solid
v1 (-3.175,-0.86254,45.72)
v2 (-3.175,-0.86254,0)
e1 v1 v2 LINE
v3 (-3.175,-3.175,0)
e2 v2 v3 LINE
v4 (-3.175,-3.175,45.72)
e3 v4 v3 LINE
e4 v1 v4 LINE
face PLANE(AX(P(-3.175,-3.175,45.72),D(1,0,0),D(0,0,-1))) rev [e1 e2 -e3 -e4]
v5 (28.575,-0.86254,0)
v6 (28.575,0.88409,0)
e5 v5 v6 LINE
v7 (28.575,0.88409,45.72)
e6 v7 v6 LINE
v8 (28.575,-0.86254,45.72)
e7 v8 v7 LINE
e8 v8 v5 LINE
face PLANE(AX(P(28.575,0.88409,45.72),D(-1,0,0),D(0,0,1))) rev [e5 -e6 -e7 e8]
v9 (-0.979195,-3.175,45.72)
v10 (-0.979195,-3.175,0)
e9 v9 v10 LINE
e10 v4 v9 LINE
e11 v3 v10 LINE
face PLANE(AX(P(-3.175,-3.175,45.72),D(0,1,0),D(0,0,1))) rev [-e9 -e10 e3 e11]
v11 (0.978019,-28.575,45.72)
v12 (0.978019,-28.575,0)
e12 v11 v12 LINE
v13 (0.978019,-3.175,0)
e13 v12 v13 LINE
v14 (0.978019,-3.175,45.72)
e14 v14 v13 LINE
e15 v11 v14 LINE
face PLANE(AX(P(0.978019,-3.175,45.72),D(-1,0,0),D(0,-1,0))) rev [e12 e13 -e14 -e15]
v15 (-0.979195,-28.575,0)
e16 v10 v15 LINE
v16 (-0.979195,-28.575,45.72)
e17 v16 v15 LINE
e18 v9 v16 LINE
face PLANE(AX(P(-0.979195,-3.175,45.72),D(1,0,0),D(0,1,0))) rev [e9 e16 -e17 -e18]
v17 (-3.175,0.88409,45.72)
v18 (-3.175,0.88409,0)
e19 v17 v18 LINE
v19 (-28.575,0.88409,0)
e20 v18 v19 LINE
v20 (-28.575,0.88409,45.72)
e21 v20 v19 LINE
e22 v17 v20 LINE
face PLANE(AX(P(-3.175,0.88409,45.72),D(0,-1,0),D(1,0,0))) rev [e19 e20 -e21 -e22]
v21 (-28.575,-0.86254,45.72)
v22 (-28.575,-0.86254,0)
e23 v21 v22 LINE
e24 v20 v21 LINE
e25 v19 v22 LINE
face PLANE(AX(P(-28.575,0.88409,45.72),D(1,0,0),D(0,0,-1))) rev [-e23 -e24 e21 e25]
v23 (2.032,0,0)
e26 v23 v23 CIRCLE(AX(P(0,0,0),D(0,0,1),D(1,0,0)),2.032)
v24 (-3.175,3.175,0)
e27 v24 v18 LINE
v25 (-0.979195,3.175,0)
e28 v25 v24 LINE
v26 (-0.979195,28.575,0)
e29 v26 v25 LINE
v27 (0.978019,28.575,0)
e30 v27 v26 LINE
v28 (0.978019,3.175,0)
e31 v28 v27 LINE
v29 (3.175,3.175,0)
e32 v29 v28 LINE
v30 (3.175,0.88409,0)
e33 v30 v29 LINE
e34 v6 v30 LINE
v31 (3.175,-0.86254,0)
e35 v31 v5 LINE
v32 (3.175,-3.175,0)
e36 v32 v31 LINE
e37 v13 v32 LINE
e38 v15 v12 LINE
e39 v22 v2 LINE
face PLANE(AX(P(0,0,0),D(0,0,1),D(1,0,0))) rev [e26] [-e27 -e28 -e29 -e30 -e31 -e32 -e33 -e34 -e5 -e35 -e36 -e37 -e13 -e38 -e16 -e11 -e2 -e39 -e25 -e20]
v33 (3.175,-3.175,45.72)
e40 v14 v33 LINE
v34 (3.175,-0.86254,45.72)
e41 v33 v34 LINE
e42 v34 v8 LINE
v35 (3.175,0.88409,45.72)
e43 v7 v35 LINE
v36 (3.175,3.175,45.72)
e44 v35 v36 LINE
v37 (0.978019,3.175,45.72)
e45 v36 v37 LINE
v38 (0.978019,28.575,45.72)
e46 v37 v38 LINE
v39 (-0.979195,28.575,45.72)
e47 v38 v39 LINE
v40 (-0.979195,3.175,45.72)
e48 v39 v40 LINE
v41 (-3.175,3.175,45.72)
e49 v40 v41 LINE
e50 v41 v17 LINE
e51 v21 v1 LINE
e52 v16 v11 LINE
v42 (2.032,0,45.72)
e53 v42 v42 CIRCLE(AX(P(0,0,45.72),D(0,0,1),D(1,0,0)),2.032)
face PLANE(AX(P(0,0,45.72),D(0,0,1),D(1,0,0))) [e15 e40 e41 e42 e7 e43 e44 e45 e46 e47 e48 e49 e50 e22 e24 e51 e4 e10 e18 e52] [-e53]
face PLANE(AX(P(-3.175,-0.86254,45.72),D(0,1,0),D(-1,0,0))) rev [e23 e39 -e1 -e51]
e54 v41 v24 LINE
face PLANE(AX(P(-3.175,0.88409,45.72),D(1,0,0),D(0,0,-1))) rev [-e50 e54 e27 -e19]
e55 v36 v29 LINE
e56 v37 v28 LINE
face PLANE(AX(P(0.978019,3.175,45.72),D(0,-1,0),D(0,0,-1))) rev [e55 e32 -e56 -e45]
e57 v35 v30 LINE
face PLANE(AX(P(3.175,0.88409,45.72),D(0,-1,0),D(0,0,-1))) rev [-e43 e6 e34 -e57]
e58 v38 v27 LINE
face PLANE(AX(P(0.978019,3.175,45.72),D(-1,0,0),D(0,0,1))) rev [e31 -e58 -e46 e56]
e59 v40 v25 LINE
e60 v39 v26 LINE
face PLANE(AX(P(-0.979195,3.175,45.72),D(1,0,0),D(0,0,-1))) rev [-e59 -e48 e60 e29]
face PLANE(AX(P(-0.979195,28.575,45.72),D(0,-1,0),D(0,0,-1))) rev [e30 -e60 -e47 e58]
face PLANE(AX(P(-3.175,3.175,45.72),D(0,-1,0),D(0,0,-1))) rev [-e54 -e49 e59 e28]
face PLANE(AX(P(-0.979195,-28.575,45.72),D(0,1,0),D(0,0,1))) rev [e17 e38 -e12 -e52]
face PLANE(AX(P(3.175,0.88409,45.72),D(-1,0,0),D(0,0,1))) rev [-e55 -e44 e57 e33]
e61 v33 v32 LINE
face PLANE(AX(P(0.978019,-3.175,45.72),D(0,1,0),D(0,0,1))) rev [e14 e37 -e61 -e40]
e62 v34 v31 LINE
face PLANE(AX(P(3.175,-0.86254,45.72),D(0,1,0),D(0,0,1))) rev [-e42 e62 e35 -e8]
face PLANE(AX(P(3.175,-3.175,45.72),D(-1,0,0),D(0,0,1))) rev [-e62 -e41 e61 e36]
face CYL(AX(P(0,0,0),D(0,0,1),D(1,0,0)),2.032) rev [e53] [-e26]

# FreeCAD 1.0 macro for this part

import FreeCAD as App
import Part
import Sketcher

V = App.Vector
Q = App.Units.Quantity

doc = App.newDocument("Part")
body = doc.addObject("PartDesign::Body", "Body")

sketch1 = body.newObject("Sketcher::SketchObject", "Sketch")
sketch1.AttachmentSupport = (doc.getObject("XY_Plane"), [""])
sketch1.MapMode = "FlatFace"
sketch1.addGeometry(Part.LineSegment(V(-3.175, 3.175, 0), V(-3.175, 0.88409, 0)), False)
sketch1.addGeometry(Part.LineSegment(V(-3.175, 0.88409, 0), V(-28.575, 0.88409, 0)), False)
sketch1.addGeometry(Part.LineSegment(V(-28.575, 0.88409, 0), V(-28.575, -0.86254, 0)), False)
sketch1.addGeometry(Part.LineSegment(V(-28.575, -0.86254, 0), V(-3.175, -0.86254, 0)), False)
sketch1.addGeometry(Part.LineSegment(V(-3.175, -0.86254, 0), V(-3.175, -3.175, 0)), False)
sketch1.addGeometry(Part.LineSegment(V(-3.175, -3.175, 0), V(-0.979195, -3.175, 0)), False)
sketch1.addGeometry(Part.LineSegment(V(-0.979195, -3.175, 0), V(-0.979195, -28.575, 0)), False)
sketch1.addGeometry(Part.LineSegment(V(-0.979195, -28.575, 0), V(0.978019, -28.575, 0)), False)
sketch1.addGeometry(Part.LineSegment(V(0.978019, -28.575, 0), V(0.978019, -3.175, 0)), False)
sketch1.addGeometry(Part.LineSegment(V(0.978019, -3.175, 0), V(3.175, -3.175, 0)), False)
sketch1.addGeometry(Part.LineSegment(V(3.175, -3.175, 0), V(3.175, -0.86254, 0)), False)
sketch1.addGeometry(Part.LineSegment(V(3.175, -0.86254, 0), V(28.575, -0.86254, 0)), False)
sketch1.addGeometry(Part.LineSegment(V(28.575, -0.86254, 0), V(28.575, 0.88409, 0)), False)
sketch1.addGeometry(Part.LineSegment(V(28.575, 0.88409, 0), V(3.175, 0.88409, 0)), False)
sketch1.addGeometry(Part.LineSegment(V(3.175, 0.88409, 0), V(3.175, 3.175, 0)), False)
sketch1.addGeometry(Part.LineSegment(V(3.175, 3.175, 0), V(0.978019, 3.175, 0)), False)
sketch1.addGeometry(Part.LineSegment(V(0.978019, 3.175, 0), V(0.978019, 28.575, 0)), False)
sketch1.addGeometry(Part.LineSegment(V(0.978019, 28.575, 0), V(-0.979195, 28.575, 0)), False)
sketch1.addGeometry(Part.LineSegment(V(-0.979195, 28.575, 0), V(-0.979195, 3.175, 0)), False)
sketch1.addGeometry(Part.LineSegment(V(-0.979195, 3.175, 0), V(-3.175, 3.175, 0)), False)
sketch1.addConstraint(Sketcher.Constraint("Coincident", 0, 2, 1, 1))
sketch1.addConstraint(Sketcher.Constraint("Coincident", 1, 2, 2, 1))
sketch1.addConstraint(Sketcher.Constraint("Coincident", 2, 2, 3, 1))
sketch1.addConstraint(Sketcher.Constraint("Coincident", 3, 2, 4, 1))
sketch1.addConstraint(Sketcher.Constraint("Coincident", 4, 2, 5, 1))
sketch1.addConstraint(Sketcher.Constraint("Coincident", 5, 2, 6, 1))
sketch1.addConstraint(Sketcher.Constraint("Coincident", 6, 2, 7, 1))
sketch1.addConstraint(Sketcher.Constraint("Coincident", 7, 2, 8, 1))
sketch1.addConstraint(Sketcher.Constraint("Coincident", 8, 2, 9, 1))
sketch1.addConstraint(Sketcher.Constraint("Coincident", 9, 2, 10, 1))
sketch1.addConstraint(Sketcher.Constraint("Coincident", 10, 2, 11, 1))
sketch1.addConstraint(Sketcher.Constraint("Coincident", 11, 2, 12, 1))
sketch1.addConstraint(Sketcher.Constraint("Coincident", 12, 2, 13, 1))
sketch1.addConstraint(Sketcher.Constraint("Coincident", 13, 2, 14, 1))
sketch1.addConstraint(Sketcher.Constraint("Coincident", 14, 2, 15, 1))
sketch1.addConstraint(Sketcher.Constraint("Coincident", 15, 2, 16, 1))
sketch1.addConstraint(Sketcher.Constraint("Coincident", 16, 2, 17, 1))
sketch1.addConstraint(Sketcher.Constraint("Coincident", 17, 2, 18, 1))
sketch1.addConstraint(Sketcher.Constraint("Coincident", 18, 2, 19, 1))
sketch1.addConstraint(Sketcher.Constraint("Coincident", 19, 2, 0, 1))
sketch1.addConstraint(Sketcher.Constraint("Vertical", 0))
sketch1.addConstraint(Sketcher.Constraint("Horizontal", 1))
sketch1.addConstraint(Sketcher.Constraint("Vertical", 2))
sketch1.addConstraint(Sketcher.Constraint("Horizontal", 3))
sketch1.addConstraint(Sketcher.Constraint("Vertical", 4))
sketch1.addConstraint(Sketcher.Constraint("Horizontal", 5))
sketch1.addConstraint(Sketcher.Constraint("Vertical", 6))
sketch1.addConstraint(Sketcher.Constraint("Horizontal", 7))
sketch1.addConstraint(Sketcher.Constraint("Vertical", 8))
sketch1.addConstraint(Sketcher.Constraint("Horizontal", 9))
sketch1.addConstraint(Sketcher.Constraint("Vertical", 10))
sketch1.addConstraint(Sketcher.Constraint("Horizontal", 11))
sketch1.addConstraint(Sketcher.Constraint("Vertical", 12))
sketch1.addConstraint(Sketcher.Constraint("Horizontal", 13))
sketch1.addConstraint(Sketcher.Constraint("Vertical", 14))
sketch1.addConstraint(Sketcher.Constraint("Horizontal", 15))
sketch1.addConstraint(Sketcher.Constraint("Vertical", 16))
sketch1.addConstraint(Sketcher.Constraint("Horizontal", 17))
sketch1.addConstraint(Sketcher.Constraint("Vertical", 18))
sketch1.addConstraint(Sketcher.Constraint("Horizontal", 19))
sketch1.addConstraint(Sketcher.Constraint("Symmetric", 4, 2, 14, 2, -1, 1))
sketch1.addConstraint(Sketcher.Constraint("Symmetric", 9, 2, 19, 2, -1, 1))
sketch1.addConstraint(Sketcher.Constraint("Symmetric", 4, 2, 9, 2, -2))
sketch1.addConstraint(Sketcher.Constraint("Symmetric", 2, 2, 11, 2, -2))
sketch1.addConstraint(Sketcher.Constraint("Symmetric", 7, 2, 16, 2, -1))
sketch1.addConstraint(Sketcher.Constraint("Horizontal", 1, 2, 12, 2))
sketch1.addConstraint(Sketcher.Constraint("Vertical", 6, 2, 17, 2))
sketch1.addConstraint(Sketcher.Constraint("Equal", 13, 6))
sketch1.addConstraint(Sketcher.Constraint("DistanceX", 1, 2, 1, 1, Q("1 in")))
sketch1.addConstraint(Sketcher.Constraint("DistanceX", 4, 2, 9, 2, Q("0.25 in")))
sketch1.addConstraint(Sketcher.Constraint("DistanceY", 9, 2, 14, 2, Q("0.25 in")))
sketch1.addConstraint(Sketcher.Constraint("DistanceX", 9, 1, 9, 2, Q("2.196981 mm")))
sketch1.addConstraint(Sketcher.Constraint("DistanceY", 0, 2, 0, 1, Q("2.29091 mm")))
sketch1.addConstraint(Sketcher.Constraint("DistanceY", 2, 2, 2, 1, Q("1.74663 mm")))
sketch1.addConstraint(Sketcher.Constraint("DistanceX", 5, 1, 5, 2, Q("2.195805 mm")))
pad1 = body.newObject("PartDesign::Pad", "Pad")
pad1.Profile = sketch1
pad1.Length = Q("1.8 in")

sketch2 = body.newObject("Sketcher::SketchObject", "Sketch001")
sketch2.AttachmentSupport = (doc.getObject("XY_Plane"), [""])
sketch2.MapMode = "FlatFace"
sketch2.AttachmentOffset = App.Placement(V(0, 0, 1.8 * 25.4), App.Rotation())
sketch2.addGeometry(Part.Circle(V(0, 0, 0), V(0, 0, 1), 2.032), False)
sketch2.addConstraint(Sketcher.Constraint("Coincident", 0, 3, -1, 1))
sketch2.addConstraint(Sketcher.Constraint("Diameter", 0, Q("0.16 in")))
pocket1 = body.newObject("PartDesign::Pocket", "Pocket")
pocket1.Profile = sketch2
pocket1.Length = Q("1.8 in")

doc.recompute()
